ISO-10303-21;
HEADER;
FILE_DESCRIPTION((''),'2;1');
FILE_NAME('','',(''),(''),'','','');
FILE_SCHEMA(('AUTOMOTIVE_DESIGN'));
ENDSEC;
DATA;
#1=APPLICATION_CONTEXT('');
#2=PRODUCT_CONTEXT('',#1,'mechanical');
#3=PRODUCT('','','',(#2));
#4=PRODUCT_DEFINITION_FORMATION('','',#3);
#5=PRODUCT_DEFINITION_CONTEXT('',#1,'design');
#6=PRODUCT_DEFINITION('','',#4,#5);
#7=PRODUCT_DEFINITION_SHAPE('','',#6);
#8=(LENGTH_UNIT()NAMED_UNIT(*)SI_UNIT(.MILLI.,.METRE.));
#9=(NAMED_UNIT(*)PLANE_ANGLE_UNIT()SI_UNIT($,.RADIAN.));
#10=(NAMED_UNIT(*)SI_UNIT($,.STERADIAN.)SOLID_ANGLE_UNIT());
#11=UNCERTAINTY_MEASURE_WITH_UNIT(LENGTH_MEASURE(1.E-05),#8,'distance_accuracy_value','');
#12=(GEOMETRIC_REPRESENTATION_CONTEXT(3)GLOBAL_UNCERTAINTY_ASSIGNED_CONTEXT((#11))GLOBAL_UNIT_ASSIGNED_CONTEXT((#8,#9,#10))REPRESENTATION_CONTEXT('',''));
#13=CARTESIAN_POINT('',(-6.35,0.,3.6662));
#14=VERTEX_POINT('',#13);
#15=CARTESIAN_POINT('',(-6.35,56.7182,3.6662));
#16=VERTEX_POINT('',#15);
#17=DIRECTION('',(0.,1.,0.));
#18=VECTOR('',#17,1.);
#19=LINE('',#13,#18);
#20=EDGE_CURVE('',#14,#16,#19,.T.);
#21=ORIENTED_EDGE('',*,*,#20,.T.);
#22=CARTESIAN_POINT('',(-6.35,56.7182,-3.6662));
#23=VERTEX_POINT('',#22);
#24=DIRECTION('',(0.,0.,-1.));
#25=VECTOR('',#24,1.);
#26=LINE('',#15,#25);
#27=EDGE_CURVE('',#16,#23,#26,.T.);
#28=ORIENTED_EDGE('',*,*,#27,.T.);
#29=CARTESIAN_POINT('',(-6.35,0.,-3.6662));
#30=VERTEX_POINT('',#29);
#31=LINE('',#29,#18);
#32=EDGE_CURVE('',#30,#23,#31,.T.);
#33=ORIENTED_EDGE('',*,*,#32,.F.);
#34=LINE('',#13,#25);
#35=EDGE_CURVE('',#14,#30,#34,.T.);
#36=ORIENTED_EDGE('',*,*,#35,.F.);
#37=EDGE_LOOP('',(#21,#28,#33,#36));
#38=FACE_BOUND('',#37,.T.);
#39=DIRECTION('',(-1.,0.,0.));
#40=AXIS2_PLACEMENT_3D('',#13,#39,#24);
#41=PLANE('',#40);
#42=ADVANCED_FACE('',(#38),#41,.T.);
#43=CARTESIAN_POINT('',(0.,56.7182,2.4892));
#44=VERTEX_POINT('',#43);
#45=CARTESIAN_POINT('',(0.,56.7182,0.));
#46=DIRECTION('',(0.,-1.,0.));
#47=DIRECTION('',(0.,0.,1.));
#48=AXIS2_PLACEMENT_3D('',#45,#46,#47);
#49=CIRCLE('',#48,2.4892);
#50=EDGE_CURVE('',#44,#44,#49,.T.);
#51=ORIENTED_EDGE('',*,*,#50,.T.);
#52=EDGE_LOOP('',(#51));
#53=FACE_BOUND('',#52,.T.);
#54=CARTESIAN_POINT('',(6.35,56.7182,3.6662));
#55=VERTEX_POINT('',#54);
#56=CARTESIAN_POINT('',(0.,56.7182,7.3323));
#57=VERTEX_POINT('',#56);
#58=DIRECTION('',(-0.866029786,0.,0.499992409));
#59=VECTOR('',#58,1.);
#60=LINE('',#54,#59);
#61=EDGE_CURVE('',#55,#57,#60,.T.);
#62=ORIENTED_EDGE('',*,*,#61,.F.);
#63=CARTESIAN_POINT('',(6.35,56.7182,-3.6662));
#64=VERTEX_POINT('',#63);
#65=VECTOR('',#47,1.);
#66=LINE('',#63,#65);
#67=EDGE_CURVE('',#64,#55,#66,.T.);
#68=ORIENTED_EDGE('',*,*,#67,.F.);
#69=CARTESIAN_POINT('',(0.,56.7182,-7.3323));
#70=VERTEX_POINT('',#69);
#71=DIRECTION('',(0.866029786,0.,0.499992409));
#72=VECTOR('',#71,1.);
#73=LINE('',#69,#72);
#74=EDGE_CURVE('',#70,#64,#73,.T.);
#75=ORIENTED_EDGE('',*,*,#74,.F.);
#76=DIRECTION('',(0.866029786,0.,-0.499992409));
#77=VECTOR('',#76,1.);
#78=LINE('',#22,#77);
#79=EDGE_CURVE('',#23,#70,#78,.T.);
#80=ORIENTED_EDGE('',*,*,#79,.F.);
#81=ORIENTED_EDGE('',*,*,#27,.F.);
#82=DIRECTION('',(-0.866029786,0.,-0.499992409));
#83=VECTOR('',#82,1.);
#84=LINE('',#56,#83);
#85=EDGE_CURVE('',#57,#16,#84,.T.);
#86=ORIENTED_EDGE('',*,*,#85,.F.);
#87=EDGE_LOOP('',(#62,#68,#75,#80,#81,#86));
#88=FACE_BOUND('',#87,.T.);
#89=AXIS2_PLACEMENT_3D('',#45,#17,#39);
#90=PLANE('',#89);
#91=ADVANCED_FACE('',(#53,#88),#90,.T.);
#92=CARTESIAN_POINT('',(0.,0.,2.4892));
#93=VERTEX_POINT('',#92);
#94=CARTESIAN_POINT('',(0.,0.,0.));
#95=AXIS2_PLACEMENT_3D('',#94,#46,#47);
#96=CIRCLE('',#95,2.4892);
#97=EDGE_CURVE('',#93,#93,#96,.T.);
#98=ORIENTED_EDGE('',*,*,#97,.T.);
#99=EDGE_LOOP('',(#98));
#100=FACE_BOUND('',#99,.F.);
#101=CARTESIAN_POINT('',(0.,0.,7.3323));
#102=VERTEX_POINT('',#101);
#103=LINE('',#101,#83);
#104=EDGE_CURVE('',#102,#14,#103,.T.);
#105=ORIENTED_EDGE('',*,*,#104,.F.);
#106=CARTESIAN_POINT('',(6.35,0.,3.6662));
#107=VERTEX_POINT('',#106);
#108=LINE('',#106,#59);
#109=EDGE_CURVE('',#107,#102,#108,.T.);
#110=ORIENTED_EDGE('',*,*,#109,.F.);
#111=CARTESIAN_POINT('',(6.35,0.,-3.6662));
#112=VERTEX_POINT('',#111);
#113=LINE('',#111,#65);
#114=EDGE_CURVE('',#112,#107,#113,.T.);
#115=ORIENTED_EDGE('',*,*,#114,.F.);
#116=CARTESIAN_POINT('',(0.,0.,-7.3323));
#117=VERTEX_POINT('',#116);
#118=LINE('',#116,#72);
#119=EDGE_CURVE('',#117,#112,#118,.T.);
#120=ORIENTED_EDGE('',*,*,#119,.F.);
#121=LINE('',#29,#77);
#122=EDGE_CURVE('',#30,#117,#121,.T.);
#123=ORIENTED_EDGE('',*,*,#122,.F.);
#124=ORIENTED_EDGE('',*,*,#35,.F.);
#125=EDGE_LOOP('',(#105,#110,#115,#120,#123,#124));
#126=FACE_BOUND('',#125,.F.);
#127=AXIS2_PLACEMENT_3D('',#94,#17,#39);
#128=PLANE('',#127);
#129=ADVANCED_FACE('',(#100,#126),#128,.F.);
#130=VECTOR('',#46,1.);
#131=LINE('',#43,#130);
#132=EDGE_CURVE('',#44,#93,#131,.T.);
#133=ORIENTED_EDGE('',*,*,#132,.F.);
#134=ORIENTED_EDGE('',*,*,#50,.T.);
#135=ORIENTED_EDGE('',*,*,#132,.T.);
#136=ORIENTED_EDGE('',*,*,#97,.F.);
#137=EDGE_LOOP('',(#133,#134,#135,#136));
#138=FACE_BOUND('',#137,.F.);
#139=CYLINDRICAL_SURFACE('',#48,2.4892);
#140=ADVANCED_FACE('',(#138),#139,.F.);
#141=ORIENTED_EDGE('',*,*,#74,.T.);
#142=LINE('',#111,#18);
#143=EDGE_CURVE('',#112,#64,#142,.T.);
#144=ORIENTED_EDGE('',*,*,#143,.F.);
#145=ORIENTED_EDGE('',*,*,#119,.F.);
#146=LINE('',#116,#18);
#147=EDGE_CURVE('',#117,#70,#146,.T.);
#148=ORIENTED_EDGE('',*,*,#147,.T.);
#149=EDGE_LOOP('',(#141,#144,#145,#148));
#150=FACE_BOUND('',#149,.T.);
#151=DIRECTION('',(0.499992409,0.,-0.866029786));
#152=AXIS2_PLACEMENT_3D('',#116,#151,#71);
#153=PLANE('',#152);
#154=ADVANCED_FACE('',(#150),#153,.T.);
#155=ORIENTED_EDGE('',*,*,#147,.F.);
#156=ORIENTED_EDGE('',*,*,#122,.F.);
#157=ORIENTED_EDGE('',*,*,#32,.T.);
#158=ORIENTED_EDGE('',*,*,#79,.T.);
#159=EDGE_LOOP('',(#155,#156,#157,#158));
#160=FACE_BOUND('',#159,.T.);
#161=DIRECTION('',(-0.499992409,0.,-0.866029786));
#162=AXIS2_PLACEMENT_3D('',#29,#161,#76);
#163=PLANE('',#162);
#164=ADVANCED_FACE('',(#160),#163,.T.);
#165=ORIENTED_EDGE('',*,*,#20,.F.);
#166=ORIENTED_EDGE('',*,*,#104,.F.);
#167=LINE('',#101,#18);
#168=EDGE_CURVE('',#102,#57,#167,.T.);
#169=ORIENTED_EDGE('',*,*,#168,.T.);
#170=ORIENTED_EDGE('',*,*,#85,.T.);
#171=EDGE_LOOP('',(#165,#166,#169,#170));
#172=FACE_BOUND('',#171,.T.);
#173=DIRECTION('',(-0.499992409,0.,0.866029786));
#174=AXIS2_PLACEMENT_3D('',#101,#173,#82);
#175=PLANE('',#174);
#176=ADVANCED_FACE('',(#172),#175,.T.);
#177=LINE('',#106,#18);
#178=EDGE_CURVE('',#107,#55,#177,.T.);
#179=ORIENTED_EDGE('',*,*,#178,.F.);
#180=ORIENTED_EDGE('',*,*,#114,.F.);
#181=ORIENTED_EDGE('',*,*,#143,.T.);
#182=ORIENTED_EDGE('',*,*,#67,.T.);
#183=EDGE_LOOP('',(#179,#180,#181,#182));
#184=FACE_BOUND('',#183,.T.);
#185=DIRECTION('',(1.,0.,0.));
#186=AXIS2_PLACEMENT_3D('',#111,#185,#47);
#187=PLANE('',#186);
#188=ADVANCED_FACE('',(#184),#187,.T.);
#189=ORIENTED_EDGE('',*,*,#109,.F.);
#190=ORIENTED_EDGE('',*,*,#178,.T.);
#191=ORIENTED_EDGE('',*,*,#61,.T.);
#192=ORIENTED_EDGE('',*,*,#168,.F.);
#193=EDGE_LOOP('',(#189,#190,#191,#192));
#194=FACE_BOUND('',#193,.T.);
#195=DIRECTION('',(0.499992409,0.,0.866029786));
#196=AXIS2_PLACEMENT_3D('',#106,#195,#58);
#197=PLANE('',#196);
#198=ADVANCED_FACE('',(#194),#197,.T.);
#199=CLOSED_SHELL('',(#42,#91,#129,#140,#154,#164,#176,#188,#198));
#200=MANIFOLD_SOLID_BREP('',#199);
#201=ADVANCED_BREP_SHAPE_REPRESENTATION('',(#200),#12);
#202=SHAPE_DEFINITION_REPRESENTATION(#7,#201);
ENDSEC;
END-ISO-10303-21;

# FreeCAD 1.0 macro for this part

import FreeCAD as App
import Part
import Sketcher
from FreeCAD import Vector
Q = App.Units.Quantity


def add_polygon(sketch, points):
    """Adds a closed chain of lines whose ends are joined by coincident constraints."""
    first, n = sketch.GeometryCount, len(points)
    for a, b in zip(points, points[1:] + points[:1]):
        sketch.addGeometry(Part.LineSegment(App.Vector(*a, 0), App.Vector(*b, 0)), False)
    for i in range(n):
        sketch.addConstraint(Sketcher.Constraint("Coincident", first + i, 2, first + (i + 1) % n, 1))

doc = App.newDocument("Part")
body = doc.addObject("PartDesign::Body", "Body")

# Sketch on XZ plane
sketch1 = body.newObject("Sketcher::SketchObject", "Sketch")
sketch1.AttachmentSupport = (doc.getObject("XZ_Plane"), [""])
sketch1.MapMode = "FlatFace"
add_polygon(sketch1, [(0, -7.3323), (-6.35, -3.6662), (-6.35, 3.6662), (0, 7.3323), (6.35, 3.6662), (6.35, -3.6662)])  # lines 0-5
sketch1.addConstraint([
    Sketcher.Constraint("Vertical", 1),
    Sketcher.Constraint("Vertical", 4),
    Sketcher.Constraint("Symmetric", 0, 2, 3, 2, -1, 1),
    Sketcher.Constraint("Symmetric", 2, 2, 5, 2, -1, 1),
    Sketcher.Constraint("PointOnObject", 2, 2, -2),
    Sketcher.Constraint("Parallel", 2, 5),
    Sketcher.Constraint("Horizontal", 1, 2, 3, 2),
    Sketcher.Constraint("DistanceX", 1, 2, 3, 2, Q("0.5 in")),
    Sketcher.Constraint("Angle", 0, Q("150.0005 deg")),
    Sketcher.Constraint("DistanceY", 0, 2, 2, 2, Q("0.433 in")),
])
pad1 = body.newObject("PartDesign::Pad", "Pad")
pad1.Profile = sketch1
pad1.Length = Q("2.233 in")
pad1.Reversed = True

# Sketch on XZ plane
sketch2 = body.newObject("Sketcher::SketchObject", "Sketch001")
sketch2.AttachmentSupport = (doc.getObject("XZ_Plane"), [""])
sketch2.MapMode = "FlatFace"
sketch2.AttachmentOffset = App.Placement(Vector(0, 0, -2.233 * 25.4), App.Rotation())
sketch2.addGeometry(Part.Circle(Vector(0, 0, 0), Vector(0, 0, 1), 2.4892), False)
sketch2.addConstraint([
    Sketcher.Constraint("Coincident", 0, 3, -1, 1),
    Sketcher.Constraint("Diameter", 0, Q("0.196 in")),
])
doc.recompute()
hole = body.newObject("PartDesign::Hole", "Hole")
hole.Profile = sketch2
hole.ThreadType = "None"
hole.Diameter = Q("0.196 in")
hole.DepthType = "ThroughAll"
hole.Reversed = True

doc.recompute()
